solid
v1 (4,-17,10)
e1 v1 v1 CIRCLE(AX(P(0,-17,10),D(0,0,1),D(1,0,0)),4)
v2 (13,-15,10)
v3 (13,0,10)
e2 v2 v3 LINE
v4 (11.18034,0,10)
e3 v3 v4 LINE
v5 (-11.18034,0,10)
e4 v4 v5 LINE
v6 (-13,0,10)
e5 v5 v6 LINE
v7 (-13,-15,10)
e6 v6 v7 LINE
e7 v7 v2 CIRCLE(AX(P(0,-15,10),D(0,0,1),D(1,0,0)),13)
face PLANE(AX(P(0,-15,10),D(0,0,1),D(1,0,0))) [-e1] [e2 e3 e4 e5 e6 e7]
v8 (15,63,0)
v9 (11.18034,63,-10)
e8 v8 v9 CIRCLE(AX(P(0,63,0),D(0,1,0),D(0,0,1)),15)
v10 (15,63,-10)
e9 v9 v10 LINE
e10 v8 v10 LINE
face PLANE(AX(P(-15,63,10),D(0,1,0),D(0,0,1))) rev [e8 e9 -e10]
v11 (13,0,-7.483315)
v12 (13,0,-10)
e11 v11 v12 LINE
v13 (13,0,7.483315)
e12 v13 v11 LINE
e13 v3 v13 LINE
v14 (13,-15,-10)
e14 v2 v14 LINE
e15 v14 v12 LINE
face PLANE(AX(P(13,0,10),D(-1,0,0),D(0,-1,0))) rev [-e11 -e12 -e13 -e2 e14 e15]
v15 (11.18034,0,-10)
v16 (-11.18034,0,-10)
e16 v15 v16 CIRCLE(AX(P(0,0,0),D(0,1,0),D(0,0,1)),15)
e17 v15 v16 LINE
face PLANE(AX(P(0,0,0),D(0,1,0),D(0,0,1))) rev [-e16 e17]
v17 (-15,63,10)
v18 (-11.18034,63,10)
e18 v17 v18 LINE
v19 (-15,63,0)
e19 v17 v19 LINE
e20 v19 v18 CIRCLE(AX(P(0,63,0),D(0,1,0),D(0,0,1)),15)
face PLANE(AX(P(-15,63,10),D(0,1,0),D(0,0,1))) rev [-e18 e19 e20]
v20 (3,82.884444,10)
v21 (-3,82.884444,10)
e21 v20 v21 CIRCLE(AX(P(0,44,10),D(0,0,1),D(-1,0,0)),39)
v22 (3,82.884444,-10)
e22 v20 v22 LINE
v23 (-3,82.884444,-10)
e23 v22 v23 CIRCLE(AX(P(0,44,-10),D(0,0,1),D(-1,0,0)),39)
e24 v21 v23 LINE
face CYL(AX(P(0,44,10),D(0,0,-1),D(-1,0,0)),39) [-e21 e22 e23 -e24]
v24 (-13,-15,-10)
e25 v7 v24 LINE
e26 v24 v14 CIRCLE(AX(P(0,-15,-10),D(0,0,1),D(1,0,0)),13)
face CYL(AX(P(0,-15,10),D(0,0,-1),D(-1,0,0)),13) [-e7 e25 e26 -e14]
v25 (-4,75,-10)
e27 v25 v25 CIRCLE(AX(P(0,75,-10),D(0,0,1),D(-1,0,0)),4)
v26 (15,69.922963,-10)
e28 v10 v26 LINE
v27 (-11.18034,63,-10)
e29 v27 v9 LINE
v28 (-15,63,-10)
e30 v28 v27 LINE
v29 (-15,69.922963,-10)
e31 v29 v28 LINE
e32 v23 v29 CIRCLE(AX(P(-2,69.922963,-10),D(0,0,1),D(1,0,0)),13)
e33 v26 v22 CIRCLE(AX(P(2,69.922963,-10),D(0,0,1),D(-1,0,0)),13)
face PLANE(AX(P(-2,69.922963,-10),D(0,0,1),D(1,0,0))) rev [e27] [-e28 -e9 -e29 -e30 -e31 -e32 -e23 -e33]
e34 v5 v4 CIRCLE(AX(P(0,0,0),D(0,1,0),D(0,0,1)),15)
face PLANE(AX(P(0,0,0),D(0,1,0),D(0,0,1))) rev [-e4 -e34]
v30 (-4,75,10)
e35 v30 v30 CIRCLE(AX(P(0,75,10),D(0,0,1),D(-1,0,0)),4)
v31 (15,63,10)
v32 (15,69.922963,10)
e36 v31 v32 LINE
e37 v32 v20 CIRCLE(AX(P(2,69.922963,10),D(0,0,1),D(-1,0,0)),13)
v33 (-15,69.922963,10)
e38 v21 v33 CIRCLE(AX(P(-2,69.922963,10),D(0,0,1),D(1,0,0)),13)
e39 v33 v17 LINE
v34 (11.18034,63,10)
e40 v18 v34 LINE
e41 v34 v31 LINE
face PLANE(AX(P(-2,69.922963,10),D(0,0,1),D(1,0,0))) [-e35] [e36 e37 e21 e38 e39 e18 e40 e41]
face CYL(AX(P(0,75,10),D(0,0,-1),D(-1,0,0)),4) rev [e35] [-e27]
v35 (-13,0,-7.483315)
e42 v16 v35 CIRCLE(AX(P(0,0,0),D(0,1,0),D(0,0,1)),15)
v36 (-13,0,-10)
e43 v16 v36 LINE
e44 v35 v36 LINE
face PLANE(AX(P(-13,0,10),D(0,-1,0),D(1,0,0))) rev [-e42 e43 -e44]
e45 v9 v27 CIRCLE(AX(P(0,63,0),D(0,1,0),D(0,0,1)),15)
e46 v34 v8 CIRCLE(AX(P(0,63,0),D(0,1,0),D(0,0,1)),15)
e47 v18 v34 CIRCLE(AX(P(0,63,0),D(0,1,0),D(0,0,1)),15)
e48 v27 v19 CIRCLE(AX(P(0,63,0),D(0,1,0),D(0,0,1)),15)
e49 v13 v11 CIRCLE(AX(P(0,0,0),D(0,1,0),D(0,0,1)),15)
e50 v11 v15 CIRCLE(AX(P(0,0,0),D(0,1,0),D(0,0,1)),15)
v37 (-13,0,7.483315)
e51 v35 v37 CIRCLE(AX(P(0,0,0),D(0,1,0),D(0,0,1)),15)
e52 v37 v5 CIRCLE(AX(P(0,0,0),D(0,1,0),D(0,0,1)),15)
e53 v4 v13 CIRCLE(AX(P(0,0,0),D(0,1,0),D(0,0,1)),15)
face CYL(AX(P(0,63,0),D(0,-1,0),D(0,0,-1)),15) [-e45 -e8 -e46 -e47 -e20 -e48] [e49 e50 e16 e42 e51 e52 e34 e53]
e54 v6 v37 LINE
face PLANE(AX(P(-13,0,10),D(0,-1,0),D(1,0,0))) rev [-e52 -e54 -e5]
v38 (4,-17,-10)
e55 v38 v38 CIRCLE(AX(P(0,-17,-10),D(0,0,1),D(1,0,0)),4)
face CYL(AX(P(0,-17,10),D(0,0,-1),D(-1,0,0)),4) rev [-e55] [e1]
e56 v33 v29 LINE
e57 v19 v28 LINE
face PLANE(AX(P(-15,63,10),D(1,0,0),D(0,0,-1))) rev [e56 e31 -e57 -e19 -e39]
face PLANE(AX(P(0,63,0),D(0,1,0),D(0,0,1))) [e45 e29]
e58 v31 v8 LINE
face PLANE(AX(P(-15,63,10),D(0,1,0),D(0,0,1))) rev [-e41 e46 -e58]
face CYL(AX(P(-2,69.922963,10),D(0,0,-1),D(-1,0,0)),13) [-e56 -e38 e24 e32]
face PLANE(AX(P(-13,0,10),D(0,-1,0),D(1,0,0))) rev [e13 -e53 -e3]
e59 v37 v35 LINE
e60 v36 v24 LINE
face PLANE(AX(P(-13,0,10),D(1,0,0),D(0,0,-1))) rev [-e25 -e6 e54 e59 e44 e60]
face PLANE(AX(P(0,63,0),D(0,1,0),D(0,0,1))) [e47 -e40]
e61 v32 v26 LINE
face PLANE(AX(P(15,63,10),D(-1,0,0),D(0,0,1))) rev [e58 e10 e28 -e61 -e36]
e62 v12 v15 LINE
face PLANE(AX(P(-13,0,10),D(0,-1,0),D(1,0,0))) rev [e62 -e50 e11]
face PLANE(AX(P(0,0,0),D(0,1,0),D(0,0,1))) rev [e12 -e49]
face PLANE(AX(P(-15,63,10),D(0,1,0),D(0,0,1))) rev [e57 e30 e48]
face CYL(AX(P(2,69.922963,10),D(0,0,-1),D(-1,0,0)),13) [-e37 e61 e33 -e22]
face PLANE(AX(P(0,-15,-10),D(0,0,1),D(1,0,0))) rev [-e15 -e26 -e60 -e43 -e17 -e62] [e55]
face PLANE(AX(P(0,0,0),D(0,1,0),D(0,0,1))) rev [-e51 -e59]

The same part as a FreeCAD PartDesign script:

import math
import FreeCAD as App
import Part
import Sketcher
from FreeCAD import Vector
Q = App.Units.Quantity

doc = App.newDocument("Part")
body = doc.addObject("PartDesign::Body", "Body")

sketch1 = body.newObject("Sketcher::SketchObject", "Sketch")
sketch1.AttachmentSupport = (doc.getObject("XZ_Plane"), [""])
sketch1.MapMode = "FlatFace"
sketch1.addGeometry(Part.Circle(Vector(0, 0, 0), Vector(0, 0, 1), 15), False)
sketch1.addConstraint([
    Sketcher.Constraint("Coincident", 0, 3, -1, 1),
    Sketcher.Constraint("Diameter", 0, Q("30 mm")),
])
pad1 = body.newObject("PartDesign::Pad", "Pad")
pad1.Profile = sketch1
pad1.Length = 63
pad1.Reversed = True

sketch2 = body.newObject("Sketcher::SketchObject", "Sketch001")
sketch2.AttachmentSupport = (doc.getObject("XY_Plane"), [""])
sketch2.MapMode = "FlatFace"
sketch2.addGeometry([
    Part.LineSegment(Vector(-13, 0, 0), Vector(-13, -15, 0)),
    Part.ArcOfCircle(Part.Circle(Vector(0, -15, 0), Vector(0, 0, 1), 13), math.radians(180), math.radians(360)),
    Part.LineSegment(Vector(13, -15, 0), Vector(13, 0, 0)),
    Part.LineSegment(Vector(13, 0, 0), Vector(-13, 0, 0)),
    Part.Circle(Vector(0, -17, 0), Vector(0, 0, 1), 4),
    Part.LineSegment(Vector(-15, 63, 0), Vector(15, 63, 0)),
    Part.LineSegment(Vector(15, 63, 0), Vector(15, 69.9, 0)),
    Part.ArcOfCircle(Part.Circle(Vector(2, 69.9, 0), Vector(0, 0, 1), 13), math.radians(0), math.radians(86)),
    Part.ArcOfCircle(Part.Circle(Vector(0, 44, 0), Vector(0, 0, 1), 39), math.radians(85.59), math.radians(94.41)),
    Part.ArcOfCircle(Part.Circle(Vector(-2, 69.9, 0), Vector(0, 0, 1), 13), math.radians(94), math.radians(180)),
    Part.LineSegment(Vector(-15, 69.9, 0), Vector(-15, 63, 0)),
    Part.Circle(Vector(0, 75, 0), Vector(0, 0, 1), 4),
], False)
sketch2.addConstraint([
    Sketcher.Constraint("Tangent", 0, 2, 1, 1),
    Sketcher.Constraint("Tangent", 1, 2, 2, 1),
    Sketcher.Constraint("Coincident", 2, 2, 3, 1),
    Sketcher.Constraint("Coincident", 3, 2, 0, 1),
    Sketcher.Constraint("Coincident", 5, 2, 6, 1),
    Sketcher.Constraint("Tangent", 6, 2, 7, 1),
    Sketcher.Constraint("Tangent", 7, 2, 8, 1),
    Sketcher.Constraint("Tangent", 8, 2, 9, 1),
    Sketcher.Constraint("Tangent", 9, 2, 10, 1),
    Sketcher.Constraint("Coincident", 10, 2, 5, 1),
    Sketcher.Constraint("Vertical", 0),
    Sketcher.Constraint("Vertical", 2),
    Sketcher.Constraint("Horizontal", 3),
    Sketcher.Constraint("Horizontal", 5),
    Sketcher.Constraint("Vertical", 6),
    Sketcher.Constraint("Vertical", 10),
    Sketcher.Constraint("Equal", 1, 7),
    Sketcher.Constraint("Equal", 7, 9),
    Sketcher.Constraint("Equal", 4, 11),
    Sketcher.Constraint("Symmetric", 2, 2, 3, 2, -1, 1),
    Sketcher.Constraint("Symmetric", 7, 3, 9, 3, -2),
    Sketcher.Constraint("PointOnObject", 4, 3, -2),
    Sketcher.Constraint("PointOnObject", 11, 3, -2),
    Sketcher.Constraint("Diameter", 4, Q("8 mm")),
    Sketcher.Constraint("Radius", 1, Q("13 mm")),
    Sketcher.Constraint("Radius", 8, Q("39 mm")),
    Sketcher.Constraint("DistanceX", 5, 1, 5, 2, Q("30 mm")),
    Sketcher.Constraint("DistanceY", 0, 2, 0, 1, Q("15 mm")),
    Sketcher.Constraint("DistanceY", 4, 3, -1, 1, Q("17 mm")),
    Sketcher.Constraint("DistanceY", -1, 1, 8, 3, Q("44 mm")),
    Sketcher.Constraint("DistanceY", -1, 1, 11, 3, Q("75 mm")),
    Sketcher.Constraint("DistanceY", -1, 1, 5, 2, Q("63 mm")),
])
pad2 = body.newObject("PartDesign::Pad", "Pad001")
pad2.Profile = sketch2
pad2.Length = 20
pad2.Midplane = True

doc.recompute()
